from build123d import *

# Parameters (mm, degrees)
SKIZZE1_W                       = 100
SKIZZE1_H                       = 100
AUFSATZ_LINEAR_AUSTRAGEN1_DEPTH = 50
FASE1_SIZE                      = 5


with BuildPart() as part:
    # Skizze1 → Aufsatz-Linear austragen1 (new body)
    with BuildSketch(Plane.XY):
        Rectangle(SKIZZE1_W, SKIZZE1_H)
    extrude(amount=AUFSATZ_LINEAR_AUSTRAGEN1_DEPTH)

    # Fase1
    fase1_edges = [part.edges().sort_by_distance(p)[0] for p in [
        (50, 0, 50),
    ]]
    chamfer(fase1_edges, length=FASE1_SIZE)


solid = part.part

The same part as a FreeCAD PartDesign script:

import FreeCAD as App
import Part
import Sketcher

V = App.Vector
Q = App.Units.Quantity


def edges_at(feature, points):
    """Names of the edges that pass closest to the given points."""
    edges = feature.Shape.Edges
    near = lambda p: min(range(len(edges)), key=lambda i: edges[i].distToShape(Part.Vertex(*p))[0])
    return sorted({f"Edge{near(p) + 1}" for p in points})


def add_polygon(sketch, points):
    """Adds a closed chain of lines whose ends are joined by coincident constraints."""
    first, n = sketch.GeometryCount, len(points)
    for a, b in zip(points, points[1:] + points[:1]):
        sketch.addGeometry(Part.LineSegment(App.Vector(*a, 0), App.Vector(*b, 0)), False)
    for i in range(n):
        sketch.addConstraint(Sketcher.Constraint("Coincident", first + i, 2, first + (i + 1) % n, 1))

doc = App.newDocument("Part")
body = doc.addObject("PartDesign::Body", "Body")

# Sketch on XY plane
sketch1 = body.newObject("Sketcher::SketchObject", "Sketch")
sketch1.AttachmentSupport = (doc.getObject("XY_Plane"), [""])
sketch1.MapMode = "FlatFace"
add_polygon(sketch1, [(-50, 50), (-50, -50), (50, -50), (50, 50)])  # lines 0-3
sketch1.addConstraint([
    Sketcher.Constraint("Vertical", 0),
    Sketcher.Constraint("Horizontal", 1),
    Sketcher.Constraint("Vertical", 2),
    Sketcher.Constraint("Horizontal", 3),
    Sketcher.Constraint("Symmetric", 0, 2, 2, 2, -1, 1),
    Sketcher.Constraint("Equal", 3, 0),
    Sketcher.Constraint("DistanceX", 1, 1, 1, 2, Q("100 mm")),
])
pad1 = body.newObject("PartDesign::Pad", "Pad")
pad1.Profile = sketch1
pad1.Length = 50
doc.recompute()

chamfer = body.newObject("PartDesign::Chamfer", "Chamfer")
chamfer.Base = (pad1, edges_at(pad1, [(50, 0, 50)]))
chamfer.Size = 5

doc.recompute()
